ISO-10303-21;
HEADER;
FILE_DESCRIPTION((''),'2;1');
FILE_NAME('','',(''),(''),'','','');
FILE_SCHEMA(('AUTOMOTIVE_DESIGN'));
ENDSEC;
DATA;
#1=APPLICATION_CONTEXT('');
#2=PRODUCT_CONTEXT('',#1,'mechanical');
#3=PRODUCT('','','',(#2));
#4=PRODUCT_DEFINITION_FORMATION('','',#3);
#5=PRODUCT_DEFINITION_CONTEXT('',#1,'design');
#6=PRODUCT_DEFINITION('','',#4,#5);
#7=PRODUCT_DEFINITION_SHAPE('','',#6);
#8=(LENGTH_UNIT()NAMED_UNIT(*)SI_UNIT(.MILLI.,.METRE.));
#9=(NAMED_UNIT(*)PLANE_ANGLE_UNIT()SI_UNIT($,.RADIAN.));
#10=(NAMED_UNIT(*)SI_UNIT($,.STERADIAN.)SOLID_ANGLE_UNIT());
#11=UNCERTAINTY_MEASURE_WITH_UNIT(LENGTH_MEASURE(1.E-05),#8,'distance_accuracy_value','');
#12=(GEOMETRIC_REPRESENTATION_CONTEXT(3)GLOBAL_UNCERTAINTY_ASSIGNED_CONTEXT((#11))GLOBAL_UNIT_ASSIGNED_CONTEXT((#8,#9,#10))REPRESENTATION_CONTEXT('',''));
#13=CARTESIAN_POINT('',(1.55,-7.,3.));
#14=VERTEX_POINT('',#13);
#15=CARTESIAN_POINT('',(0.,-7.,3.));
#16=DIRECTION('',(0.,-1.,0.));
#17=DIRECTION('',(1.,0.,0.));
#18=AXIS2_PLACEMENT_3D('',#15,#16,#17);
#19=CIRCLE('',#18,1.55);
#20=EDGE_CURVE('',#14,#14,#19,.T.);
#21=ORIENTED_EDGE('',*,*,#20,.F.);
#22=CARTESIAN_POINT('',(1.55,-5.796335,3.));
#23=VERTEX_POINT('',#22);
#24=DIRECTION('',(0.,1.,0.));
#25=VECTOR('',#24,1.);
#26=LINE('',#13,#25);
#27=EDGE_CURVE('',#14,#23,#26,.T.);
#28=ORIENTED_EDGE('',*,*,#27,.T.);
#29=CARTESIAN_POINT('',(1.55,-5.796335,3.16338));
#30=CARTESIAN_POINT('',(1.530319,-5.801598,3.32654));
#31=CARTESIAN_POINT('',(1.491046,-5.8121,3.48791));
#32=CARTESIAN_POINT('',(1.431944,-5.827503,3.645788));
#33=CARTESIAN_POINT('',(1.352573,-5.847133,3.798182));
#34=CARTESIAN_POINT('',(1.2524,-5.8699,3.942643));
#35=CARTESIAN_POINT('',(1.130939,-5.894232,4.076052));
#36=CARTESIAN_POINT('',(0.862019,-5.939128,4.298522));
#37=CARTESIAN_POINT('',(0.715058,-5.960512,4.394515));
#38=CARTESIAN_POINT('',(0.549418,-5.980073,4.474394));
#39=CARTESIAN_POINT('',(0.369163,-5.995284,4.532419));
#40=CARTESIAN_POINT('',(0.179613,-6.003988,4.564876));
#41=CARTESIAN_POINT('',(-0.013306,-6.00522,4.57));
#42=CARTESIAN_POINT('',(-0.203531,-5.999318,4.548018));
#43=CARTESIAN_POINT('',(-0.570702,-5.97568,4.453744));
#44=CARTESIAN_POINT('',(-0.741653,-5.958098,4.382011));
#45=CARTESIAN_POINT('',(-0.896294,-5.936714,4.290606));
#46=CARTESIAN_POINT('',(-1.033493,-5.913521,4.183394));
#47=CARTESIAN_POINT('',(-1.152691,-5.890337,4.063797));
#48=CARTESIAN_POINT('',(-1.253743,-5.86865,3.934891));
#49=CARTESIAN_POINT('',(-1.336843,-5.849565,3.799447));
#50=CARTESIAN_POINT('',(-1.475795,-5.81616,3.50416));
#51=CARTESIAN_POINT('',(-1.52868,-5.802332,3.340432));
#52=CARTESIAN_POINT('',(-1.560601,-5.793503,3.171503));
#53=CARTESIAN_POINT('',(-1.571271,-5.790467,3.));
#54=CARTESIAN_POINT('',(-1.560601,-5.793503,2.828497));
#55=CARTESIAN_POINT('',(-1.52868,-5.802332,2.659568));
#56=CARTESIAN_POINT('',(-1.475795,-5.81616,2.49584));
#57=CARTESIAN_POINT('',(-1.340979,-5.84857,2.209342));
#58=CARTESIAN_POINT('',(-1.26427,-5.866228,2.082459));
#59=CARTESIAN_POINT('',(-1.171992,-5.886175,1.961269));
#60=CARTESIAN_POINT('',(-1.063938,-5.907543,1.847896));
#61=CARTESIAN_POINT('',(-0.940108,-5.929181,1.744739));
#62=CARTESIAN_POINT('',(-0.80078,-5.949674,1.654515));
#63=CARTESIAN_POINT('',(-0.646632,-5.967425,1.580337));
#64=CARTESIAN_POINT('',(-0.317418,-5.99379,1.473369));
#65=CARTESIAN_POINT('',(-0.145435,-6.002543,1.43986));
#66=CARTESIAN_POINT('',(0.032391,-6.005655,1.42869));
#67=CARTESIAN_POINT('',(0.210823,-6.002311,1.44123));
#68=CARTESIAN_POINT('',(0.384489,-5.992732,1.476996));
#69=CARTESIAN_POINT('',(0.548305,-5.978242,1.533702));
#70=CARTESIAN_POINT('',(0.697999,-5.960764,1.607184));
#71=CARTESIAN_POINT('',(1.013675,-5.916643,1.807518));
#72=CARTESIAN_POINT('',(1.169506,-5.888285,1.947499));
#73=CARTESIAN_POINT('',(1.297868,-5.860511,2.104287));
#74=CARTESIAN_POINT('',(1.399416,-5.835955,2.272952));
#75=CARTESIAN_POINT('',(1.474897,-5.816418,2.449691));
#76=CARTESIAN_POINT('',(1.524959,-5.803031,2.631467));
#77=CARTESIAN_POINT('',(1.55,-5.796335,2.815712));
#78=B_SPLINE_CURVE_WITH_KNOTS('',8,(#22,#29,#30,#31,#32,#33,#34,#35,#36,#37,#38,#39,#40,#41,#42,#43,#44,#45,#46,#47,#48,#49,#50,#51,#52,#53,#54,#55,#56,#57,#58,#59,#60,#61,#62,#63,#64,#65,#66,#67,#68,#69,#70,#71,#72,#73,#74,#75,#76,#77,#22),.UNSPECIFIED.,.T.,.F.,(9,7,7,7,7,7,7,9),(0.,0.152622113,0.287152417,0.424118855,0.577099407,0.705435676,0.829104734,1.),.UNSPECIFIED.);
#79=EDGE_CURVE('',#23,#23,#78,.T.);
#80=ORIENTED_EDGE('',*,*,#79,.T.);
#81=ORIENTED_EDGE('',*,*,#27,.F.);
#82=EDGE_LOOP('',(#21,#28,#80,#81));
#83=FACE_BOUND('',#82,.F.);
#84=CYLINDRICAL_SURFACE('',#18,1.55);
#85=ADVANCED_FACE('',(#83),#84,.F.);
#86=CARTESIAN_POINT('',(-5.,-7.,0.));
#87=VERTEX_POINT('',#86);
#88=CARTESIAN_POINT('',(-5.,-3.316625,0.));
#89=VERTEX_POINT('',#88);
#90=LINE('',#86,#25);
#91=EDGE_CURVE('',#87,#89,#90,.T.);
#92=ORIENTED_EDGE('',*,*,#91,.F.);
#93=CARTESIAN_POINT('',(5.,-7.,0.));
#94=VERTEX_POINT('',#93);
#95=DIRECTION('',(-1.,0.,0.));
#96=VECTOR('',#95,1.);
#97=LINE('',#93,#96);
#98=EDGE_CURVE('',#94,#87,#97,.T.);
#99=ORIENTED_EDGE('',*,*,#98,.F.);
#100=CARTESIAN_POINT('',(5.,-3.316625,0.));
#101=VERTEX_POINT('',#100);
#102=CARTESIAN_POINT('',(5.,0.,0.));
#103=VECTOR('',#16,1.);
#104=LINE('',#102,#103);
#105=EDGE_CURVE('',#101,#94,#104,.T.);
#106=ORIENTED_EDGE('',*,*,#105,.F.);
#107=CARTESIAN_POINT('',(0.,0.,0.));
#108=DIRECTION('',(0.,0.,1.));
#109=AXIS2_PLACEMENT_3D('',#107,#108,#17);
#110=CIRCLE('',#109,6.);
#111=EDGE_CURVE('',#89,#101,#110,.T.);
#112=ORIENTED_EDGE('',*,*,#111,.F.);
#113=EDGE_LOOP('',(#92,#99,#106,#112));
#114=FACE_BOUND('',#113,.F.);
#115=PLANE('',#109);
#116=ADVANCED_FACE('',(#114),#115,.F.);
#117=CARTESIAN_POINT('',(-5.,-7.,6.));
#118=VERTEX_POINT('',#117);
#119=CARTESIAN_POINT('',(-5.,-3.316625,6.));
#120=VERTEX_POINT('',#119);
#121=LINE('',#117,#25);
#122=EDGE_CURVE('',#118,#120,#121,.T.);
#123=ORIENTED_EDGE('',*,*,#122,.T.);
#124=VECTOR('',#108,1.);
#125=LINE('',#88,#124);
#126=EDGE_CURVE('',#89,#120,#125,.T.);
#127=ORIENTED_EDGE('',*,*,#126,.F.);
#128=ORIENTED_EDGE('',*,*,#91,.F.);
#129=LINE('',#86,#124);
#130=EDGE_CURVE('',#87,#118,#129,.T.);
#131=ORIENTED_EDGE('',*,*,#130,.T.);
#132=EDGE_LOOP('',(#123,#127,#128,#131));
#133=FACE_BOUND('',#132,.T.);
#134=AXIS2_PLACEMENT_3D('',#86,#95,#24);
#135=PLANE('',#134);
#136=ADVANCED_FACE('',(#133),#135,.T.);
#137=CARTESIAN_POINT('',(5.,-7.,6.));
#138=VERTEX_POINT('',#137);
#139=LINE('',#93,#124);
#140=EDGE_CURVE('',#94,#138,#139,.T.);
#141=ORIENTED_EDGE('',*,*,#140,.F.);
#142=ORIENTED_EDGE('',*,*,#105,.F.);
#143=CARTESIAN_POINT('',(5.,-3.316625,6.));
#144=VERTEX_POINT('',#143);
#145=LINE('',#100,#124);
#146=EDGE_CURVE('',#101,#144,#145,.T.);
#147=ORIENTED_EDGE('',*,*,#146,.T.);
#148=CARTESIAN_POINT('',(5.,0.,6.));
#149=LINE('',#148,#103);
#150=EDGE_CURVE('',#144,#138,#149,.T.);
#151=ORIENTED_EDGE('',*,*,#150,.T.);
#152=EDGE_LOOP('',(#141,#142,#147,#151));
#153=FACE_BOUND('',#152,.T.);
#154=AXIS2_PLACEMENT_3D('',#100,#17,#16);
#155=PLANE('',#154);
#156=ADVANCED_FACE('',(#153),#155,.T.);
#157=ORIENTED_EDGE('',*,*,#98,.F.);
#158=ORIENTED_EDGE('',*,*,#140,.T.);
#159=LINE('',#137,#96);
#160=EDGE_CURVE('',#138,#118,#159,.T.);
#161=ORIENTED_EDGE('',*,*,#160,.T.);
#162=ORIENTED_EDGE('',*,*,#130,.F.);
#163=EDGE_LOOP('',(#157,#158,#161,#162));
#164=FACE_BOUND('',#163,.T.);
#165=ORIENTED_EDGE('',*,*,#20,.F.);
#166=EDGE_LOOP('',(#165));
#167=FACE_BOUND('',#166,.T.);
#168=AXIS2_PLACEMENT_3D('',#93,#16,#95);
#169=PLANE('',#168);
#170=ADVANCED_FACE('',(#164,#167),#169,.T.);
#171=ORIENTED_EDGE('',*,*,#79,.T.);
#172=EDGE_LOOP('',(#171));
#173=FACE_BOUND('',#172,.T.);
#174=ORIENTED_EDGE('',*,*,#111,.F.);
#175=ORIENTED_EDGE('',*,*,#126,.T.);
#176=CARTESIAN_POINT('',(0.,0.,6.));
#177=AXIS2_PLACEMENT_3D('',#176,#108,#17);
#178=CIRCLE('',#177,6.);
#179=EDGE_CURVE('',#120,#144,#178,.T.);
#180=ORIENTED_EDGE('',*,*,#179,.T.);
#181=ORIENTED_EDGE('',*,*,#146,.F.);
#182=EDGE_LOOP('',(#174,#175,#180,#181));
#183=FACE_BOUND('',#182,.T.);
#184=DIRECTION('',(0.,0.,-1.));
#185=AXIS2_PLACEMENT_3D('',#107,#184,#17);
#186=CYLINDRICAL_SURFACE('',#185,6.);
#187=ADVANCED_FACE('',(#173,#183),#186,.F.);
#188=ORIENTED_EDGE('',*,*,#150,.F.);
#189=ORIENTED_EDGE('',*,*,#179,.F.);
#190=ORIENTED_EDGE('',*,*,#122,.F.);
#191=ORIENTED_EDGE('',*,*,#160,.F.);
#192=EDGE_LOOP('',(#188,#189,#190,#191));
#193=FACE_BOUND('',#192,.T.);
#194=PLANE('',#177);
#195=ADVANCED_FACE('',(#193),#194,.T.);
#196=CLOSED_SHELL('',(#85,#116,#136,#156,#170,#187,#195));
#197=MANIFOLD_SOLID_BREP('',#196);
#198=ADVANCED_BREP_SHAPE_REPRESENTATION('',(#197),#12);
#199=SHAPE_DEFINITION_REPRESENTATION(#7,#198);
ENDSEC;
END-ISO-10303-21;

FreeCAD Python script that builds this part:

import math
import FreeCAD as App
import Part
import Sketcher
from FreeCAD import Vector
Q = App.Units.Quantity

doc = App.newDocument("Part")
params = doc.addObject("Spreadsheet::Sheet", "Params")
for row, (alias, value) in enumerate([
    ("sketch1_radius", "6 mm"),
    ("pad1_length", "6 mm"),
    ("sketch2_diameter", "3.1 mm"),
    ("pocket1_length", "6 mm"),
], start=1):
    params.set(f"A{row}", alias)
    params.set(f"B{row}", "=" + value)
    params.setAlias(f"B{row}", alias)

body = doc.addObject("PartDesign::Body", "Body")

# Sketch on XY plane
sketch1 = body.newObject("Sketcher::SketchObject", "Sketch")
sketch1.AttachmentSupport = (doc.getObject("XY_Plane"), [""])
sketch1.MapMode = "FlatFace"
sketch1.addGeometry(Part.ArcOfCircle(Part.Circle(Vector(0, 0, 0), Vector(0, 0, 1), 6), math.radians(-146), math.radians(-34)), False)
sketch1.addGeometry(Part.LineSegment(Vector(-5, -3.3, 0), Vector(-5, -7, 0)), False)
sketch1.addGeometry(Part.LineSegment(Vector(-5, -7, 0), Vector(5, -7, 0)), False)
sketch1.addGeometry(Part.LineSegment(Vector(5, -7, 0), Vector(5, -3.3, 0)), False)
sketch1.addConstraint(Sketcher.Constraint("Coincident", 0, 1, 1, 1))
sketch1.addConstraint(Sketcher.Constraint("Coincident", 1, 2, 2, 1))
sketch1.addConstraint(Sketcher.Constraint("Coincident", 2, 2, 3, 1))
sketch1.addConstraint(Sketcher.Constraint("Coincident", 3, 2, 0, 2))
sketch1.addConstraint(Sketcher.Constraint("Vertical", 1))
sketch1.addConstraint(Sketcher.Constraint("Horizontal", 2))
sketch1.addConstraint(Sketcher.Constraint("Vertical", 3))
sketch1.addConstraint(Sketcher.Constraint("Coincident", 0, 3, -1, 1))
sketch1.addConstraint(Sketcher.Constraint("Horizontal", 0, 1, 3, 2))
sketch1.addConstraint(Sketcher.Constraint("Radius", 0, Q("6 mm")))
sketch1.addConstraint(Sketcher.Constraint("DistanceX", 0, 1, -1, 1, Q("5 mm")))
sketch1.addConstraint(Sketcher.Constraint("DistanceY", 1, 2, -1, 1, Q("7 mm")))
sketch1.setExpression("Constraints[9]", "Params.sketch1_radius")
pad1 = body.newObject("PartDesign::Pad", "Pad")
pad1.Profile = sketch1
pad1.setExpression("Length", "Params.pad1_length")

# Sketch on XZ plane
sketch2 = body.newObject("Sketcher::SketchObject", "Sketch001")
sketch2.AttachmentSupport = (doc.getObject("XZ_Plane"), [""])
sketch2.MapMode = "FlatFace"
sketch2.AttachmentOffset = App.Placement(Vector(0, 0, 7), App.Rotation())
sketch2.addGeometry(Part.Circle(Vector(0, 3, 0), Vector(0, 0, 1), 1.6), False)
sketch2.addConstraint(Sketcher.Constraint("PointOnObject", 0, 3, -2))
sketch2.addConstraint(Sketcher.Constraint("Diameter", 0, Q("3.1 mm")))
sketch2.addConstraint(Sketcher.Constraint("DistanceY", -1, 1, 0, 3, Q("3 mm")))
sketch2.setExpression("Constraints[1]", "Params.sketch2_diameter")
pocket1 = body.newObject("PartDesign::Pocket", "Pocket")
pocket1.Profile = sketch2
pocket1.setExpression("Length", "Params.pocket1_length")
pocket1.Midplane = True

doc.recompute()
